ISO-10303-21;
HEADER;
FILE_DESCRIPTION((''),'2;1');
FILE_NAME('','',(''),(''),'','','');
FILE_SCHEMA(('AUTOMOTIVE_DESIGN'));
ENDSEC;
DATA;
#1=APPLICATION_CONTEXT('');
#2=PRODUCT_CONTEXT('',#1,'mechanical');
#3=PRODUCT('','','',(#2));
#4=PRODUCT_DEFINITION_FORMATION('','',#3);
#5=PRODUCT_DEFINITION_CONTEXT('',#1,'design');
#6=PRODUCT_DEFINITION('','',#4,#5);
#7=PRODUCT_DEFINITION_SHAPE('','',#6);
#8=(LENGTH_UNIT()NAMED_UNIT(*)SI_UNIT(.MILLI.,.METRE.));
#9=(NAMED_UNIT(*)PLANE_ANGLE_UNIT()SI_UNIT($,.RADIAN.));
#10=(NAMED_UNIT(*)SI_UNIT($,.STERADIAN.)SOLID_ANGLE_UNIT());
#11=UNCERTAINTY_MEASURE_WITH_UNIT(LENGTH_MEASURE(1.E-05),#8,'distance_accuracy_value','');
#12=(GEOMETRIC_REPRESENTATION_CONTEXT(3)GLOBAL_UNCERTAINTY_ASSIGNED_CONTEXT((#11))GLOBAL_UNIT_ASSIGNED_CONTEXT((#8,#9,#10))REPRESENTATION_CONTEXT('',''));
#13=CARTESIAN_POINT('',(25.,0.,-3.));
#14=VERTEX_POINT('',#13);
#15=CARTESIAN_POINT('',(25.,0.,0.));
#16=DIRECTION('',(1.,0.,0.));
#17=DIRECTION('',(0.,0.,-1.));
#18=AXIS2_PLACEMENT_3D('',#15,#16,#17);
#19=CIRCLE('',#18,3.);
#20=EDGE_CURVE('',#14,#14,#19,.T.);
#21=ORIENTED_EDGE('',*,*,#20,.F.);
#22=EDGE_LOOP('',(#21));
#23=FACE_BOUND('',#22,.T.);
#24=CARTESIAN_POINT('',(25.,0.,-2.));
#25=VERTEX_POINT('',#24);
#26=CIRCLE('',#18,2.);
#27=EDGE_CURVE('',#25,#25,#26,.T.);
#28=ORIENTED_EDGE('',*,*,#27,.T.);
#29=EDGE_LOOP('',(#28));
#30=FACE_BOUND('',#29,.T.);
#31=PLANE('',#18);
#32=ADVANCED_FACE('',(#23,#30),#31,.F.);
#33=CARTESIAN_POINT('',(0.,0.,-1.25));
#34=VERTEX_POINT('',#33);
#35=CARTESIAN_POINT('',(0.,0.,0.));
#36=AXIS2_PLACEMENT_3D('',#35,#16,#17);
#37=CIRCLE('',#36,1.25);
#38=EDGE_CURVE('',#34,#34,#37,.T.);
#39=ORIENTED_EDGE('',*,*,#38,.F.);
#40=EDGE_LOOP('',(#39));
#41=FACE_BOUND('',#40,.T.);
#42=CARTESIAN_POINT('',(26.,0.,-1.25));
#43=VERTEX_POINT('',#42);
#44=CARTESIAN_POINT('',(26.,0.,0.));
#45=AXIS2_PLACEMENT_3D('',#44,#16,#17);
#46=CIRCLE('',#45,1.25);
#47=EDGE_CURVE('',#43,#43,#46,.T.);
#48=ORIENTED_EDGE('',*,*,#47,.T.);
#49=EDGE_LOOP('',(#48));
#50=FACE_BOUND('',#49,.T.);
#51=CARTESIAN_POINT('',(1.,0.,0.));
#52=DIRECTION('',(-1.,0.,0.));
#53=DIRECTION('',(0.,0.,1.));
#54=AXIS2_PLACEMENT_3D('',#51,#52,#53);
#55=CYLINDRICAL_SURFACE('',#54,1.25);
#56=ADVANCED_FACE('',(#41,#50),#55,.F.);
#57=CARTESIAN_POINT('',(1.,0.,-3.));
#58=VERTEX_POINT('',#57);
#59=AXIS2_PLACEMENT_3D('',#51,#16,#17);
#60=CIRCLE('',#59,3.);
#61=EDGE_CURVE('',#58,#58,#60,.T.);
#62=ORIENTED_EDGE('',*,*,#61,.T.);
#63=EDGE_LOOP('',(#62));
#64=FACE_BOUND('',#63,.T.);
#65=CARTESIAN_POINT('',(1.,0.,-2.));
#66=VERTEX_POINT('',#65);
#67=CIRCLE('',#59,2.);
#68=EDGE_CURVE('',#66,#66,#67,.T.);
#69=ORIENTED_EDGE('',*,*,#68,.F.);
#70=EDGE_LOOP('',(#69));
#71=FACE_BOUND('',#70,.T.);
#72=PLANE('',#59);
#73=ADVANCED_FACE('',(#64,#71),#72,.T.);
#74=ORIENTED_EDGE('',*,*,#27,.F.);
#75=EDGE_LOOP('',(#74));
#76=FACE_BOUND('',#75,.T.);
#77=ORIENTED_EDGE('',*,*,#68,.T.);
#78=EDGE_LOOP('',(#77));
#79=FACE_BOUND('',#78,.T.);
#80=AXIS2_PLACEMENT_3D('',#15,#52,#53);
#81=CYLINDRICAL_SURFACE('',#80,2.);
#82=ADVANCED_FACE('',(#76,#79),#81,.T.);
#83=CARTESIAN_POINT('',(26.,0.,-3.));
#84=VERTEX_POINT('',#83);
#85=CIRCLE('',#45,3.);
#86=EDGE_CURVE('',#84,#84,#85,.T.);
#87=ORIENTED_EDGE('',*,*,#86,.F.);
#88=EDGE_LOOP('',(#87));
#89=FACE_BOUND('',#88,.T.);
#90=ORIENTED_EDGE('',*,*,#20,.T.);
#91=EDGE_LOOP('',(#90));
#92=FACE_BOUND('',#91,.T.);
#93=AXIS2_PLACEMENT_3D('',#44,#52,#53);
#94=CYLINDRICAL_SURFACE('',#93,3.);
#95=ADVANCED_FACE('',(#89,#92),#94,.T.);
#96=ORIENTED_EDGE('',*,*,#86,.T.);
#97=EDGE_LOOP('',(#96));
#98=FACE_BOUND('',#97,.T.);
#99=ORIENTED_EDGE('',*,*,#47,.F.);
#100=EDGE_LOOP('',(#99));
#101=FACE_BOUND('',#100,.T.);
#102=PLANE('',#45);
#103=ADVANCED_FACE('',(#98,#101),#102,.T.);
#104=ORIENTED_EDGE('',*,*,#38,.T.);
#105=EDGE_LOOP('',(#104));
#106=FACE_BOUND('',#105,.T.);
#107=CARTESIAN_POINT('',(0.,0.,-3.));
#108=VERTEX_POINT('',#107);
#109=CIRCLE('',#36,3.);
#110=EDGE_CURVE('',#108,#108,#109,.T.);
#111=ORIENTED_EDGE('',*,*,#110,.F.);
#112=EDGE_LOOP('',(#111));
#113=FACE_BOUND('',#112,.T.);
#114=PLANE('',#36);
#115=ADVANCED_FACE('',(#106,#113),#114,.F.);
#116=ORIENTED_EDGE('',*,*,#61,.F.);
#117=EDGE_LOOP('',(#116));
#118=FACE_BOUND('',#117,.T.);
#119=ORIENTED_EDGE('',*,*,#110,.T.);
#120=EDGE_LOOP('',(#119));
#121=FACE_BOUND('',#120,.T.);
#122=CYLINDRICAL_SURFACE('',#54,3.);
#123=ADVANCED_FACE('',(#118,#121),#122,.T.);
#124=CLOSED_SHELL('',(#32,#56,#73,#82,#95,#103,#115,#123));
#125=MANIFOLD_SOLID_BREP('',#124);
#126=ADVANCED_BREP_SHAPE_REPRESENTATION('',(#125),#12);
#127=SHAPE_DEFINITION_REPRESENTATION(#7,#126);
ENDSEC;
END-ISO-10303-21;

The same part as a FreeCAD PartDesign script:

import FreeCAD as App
import Part
import Sketcher
from FreeCAD import Vector
Q = App.Units.Quantity

doc = App.newDocument("Part")
body = doc.addObject("PartDesign::Body", "Body")

sketch1 = body.newObject("Sketcher::SketchObject", "Sketch")
sketch1.AttachmentSupport = (doc.getObject("YZ_Plane"), [""])
sketch1.MapMode = "FlatFace"
sketch1.addGeometry([
    Part.Circle(Vector(0, 0, 0), Vector(0, 0, 1), 3),
    Part.Circle(Vector(0, 0, 0), Vector(0, 0, 1), 1.25),
], False)
sketch1.addConstraint([
    Sketcher.Constraint("Coincident", 0, 3, -1, 1),
    Sketcher.Constraint("Coincident", 1, 3, -1, 1),
    Sketcher.Constraint("Diameter", 0, Q("6 mm")),
    Sketcher.Constraint("Diameter", 1, Q("2.5 mm")),
])
pad1 = body.newObject("PartDesign::Pad", "Pad")
pad1.Profile = sketch1
pad1.Length = 1

sketch2 = body.newObject("Sketcher::SketchObject", "Sketch001")
sketch2.AttachmentSupport = (doc.getObject("YZ_Plane"), [""])
sketch2.MapMode = "FlatFace"
sketch2.AttachmentOffset = App.Placement(Vector(0, 0, 1), App.Rotation())
sketch2.addGeometry([
    Part.Circle(Vector(0, 0, 0), Vector(0, 0, 1), 2),
    Part.Circle(Vector(0, 0, 0), Vector(0, 0, 1), 1.25),
], False)
sketch2.addConstraint([
    Sketcher.Constraint("Coincident", 0, 3, -1, 1),
    Sketcher.Constraint("Coincident", 1, 3, -1, 1),
    Sketcher.Constraint("Diameter", 0, Q("4 mm")),
    Sketcher.Constraint("Diameter", 1, Q("2.5 mm")),
])
pad2 = body.newObject("PartDesign::Pad", "Pad001")
pad2.Profile = sketch2
pad2.Length = 24

sketch3 = body.newObject("Sketcher::SketchObject", "Sketch002")
sketch3.AttachmentSupport = (doc.getObject("YZ_Plane"), [""])
sketch3.MapMode = "FlatFace"
sketch3.AttachmentOffset = App.Placement(Vector(0, 0, 25), App.Rotation())
sketch3.addGeometry([
    Part.Circle(Vector(0, 0, 0), Vector(0, 0, 1), 3),
    Part.Circle(Vector(0, 0, 0), Vector(0, 0, 1), 1.25),
], False)
sketch3.addConstraint([
    Sketcher.Constraint("Coincident", 0, 3, -1, 1),
    Sketcher.Constraint("Coincident", 1, 3, -1, 1),
    Sketcher.Constraint("Diameter", 0, Q("6 mm")),
    Sketcher.Constraint("Diameter", 1, Q("2.5 mm")),
])
pad3 = body.newObject("PartDesign::Pad", "Pad002")
pad3.Profile = sketch3
pad3.Length = 1

doc.recompute()
